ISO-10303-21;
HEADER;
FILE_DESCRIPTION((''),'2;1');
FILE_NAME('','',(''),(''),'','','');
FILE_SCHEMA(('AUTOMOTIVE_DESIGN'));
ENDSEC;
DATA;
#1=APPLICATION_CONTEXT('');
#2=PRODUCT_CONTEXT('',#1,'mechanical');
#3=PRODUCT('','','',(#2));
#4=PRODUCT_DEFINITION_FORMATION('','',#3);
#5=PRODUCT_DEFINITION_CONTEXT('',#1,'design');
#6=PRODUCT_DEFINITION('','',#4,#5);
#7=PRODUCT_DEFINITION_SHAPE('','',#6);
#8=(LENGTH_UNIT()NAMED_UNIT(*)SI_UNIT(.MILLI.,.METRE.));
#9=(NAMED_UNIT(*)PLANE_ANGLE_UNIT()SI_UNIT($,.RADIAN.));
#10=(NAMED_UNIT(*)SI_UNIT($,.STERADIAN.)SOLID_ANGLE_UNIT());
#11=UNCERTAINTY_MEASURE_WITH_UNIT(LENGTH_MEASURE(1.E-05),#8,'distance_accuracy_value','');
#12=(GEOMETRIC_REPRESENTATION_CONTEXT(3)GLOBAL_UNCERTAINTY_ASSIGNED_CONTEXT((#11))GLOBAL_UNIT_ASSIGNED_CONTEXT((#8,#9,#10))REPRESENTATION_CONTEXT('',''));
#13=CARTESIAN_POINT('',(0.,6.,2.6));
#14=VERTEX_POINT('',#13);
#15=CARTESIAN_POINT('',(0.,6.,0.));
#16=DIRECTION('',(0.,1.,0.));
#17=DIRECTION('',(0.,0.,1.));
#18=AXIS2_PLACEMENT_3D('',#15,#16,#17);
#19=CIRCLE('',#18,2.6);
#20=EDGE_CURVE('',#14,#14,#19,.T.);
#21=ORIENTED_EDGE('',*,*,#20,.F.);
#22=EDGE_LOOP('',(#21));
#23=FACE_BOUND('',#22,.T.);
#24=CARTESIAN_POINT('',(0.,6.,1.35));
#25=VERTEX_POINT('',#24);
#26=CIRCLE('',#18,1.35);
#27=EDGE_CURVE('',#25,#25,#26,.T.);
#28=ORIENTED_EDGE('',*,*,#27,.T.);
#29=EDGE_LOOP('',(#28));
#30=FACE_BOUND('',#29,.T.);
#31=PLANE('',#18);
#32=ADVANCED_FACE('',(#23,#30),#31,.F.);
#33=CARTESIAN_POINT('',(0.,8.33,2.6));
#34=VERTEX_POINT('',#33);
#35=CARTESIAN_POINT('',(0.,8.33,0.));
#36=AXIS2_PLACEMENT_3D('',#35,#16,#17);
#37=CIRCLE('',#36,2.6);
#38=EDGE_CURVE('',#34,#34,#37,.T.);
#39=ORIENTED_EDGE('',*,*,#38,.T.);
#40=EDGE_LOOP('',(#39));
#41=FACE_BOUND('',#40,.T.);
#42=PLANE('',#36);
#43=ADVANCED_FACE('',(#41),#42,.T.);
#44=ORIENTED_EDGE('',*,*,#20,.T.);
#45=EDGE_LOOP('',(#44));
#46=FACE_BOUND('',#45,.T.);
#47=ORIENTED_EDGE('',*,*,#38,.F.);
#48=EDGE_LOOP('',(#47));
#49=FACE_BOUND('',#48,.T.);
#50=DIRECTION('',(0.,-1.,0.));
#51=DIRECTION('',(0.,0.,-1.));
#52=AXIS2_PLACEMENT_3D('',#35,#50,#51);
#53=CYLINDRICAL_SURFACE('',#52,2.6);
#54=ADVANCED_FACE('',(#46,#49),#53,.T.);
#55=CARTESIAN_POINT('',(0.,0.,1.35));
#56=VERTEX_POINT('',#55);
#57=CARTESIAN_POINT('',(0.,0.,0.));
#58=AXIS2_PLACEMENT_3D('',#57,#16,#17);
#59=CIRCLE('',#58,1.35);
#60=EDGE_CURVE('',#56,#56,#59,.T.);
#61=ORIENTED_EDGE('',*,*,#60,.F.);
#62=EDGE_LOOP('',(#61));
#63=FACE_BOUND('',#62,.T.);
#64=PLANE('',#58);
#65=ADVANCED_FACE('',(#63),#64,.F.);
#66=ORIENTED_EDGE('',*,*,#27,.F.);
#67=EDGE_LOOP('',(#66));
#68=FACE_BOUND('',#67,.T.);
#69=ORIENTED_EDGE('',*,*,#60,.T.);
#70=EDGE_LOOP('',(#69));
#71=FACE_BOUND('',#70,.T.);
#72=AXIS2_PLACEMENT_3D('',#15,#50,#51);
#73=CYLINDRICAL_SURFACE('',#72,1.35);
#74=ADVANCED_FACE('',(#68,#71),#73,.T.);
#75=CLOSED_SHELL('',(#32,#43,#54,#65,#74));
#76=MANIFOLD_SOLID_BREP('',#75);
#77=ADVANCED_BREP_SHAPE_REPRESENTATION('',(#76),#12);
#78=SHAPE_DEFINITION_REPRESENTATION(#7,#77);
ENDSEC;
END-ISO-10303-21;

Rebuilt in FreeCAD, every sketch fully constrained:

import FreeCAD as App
import Part
import Sketcher

V = App.Vector
Q = App.Units.Quantity

doc = App.newDocument("Part")
body = doc.addObject("PartDesign::Body", "Body")

# Sketch on XZ plane
sketch1 = doc.addObject("Sketcher::SketchObject", "Sketch")
body.addObject(sketch1)
sketch1.AttachmentSupport = (doc.XZ_Plane, [""])
sketch1.MapMode = "FlatFace"
sketch1.addGeometry(Part.Circle(V(0, 0, 0), V(0, 0, 1), 1.35), False)
sketch1.addConstraint([
    Sketcher.Constraint("Coincident", 0, 3, -1, 1),
    Sketcher.Constraint("Diameter", 0, Q("2.7 mm")),
])
pad1 = doc.addObject("PartDesign::Pad", "Pad")
body.addObject(pad1)
pad1.Profile = sketch1
pad1.Length = 6
pad1.Reversed = True

# Sketch on XZ plane
sketch2 = doc.addObject("Sketcher::SketchObject", "Sketch001")
body.addObject(sketch2)
sketch2.AttachmentSupport = (doc.XZ_Plane, [""])
sketch2.MapMode = "FlatFace"
sketch2.AttachmentOffset = App.Placement(V(0, 0, -6), App.Rotation())
sketch2.addGeometry(Part.Circle(V(0, 0, 0), V(0, 0, 1), 2.6), False)
sketch2.addConstraint([
    Sketcher.Constraint("Coincident", 0, 3, -1, 1),
    Sketcher.Constraint("Diameter", 0, Q("5.2 mm")),
])
pad2 = doc.addObject("PartDesign::Pad", "Pad001")
body.addObject(pad2)
pad2.Profile = sketch2
pad2.Length = 2.33
pad2.Reversed = True

doc.recompute()
